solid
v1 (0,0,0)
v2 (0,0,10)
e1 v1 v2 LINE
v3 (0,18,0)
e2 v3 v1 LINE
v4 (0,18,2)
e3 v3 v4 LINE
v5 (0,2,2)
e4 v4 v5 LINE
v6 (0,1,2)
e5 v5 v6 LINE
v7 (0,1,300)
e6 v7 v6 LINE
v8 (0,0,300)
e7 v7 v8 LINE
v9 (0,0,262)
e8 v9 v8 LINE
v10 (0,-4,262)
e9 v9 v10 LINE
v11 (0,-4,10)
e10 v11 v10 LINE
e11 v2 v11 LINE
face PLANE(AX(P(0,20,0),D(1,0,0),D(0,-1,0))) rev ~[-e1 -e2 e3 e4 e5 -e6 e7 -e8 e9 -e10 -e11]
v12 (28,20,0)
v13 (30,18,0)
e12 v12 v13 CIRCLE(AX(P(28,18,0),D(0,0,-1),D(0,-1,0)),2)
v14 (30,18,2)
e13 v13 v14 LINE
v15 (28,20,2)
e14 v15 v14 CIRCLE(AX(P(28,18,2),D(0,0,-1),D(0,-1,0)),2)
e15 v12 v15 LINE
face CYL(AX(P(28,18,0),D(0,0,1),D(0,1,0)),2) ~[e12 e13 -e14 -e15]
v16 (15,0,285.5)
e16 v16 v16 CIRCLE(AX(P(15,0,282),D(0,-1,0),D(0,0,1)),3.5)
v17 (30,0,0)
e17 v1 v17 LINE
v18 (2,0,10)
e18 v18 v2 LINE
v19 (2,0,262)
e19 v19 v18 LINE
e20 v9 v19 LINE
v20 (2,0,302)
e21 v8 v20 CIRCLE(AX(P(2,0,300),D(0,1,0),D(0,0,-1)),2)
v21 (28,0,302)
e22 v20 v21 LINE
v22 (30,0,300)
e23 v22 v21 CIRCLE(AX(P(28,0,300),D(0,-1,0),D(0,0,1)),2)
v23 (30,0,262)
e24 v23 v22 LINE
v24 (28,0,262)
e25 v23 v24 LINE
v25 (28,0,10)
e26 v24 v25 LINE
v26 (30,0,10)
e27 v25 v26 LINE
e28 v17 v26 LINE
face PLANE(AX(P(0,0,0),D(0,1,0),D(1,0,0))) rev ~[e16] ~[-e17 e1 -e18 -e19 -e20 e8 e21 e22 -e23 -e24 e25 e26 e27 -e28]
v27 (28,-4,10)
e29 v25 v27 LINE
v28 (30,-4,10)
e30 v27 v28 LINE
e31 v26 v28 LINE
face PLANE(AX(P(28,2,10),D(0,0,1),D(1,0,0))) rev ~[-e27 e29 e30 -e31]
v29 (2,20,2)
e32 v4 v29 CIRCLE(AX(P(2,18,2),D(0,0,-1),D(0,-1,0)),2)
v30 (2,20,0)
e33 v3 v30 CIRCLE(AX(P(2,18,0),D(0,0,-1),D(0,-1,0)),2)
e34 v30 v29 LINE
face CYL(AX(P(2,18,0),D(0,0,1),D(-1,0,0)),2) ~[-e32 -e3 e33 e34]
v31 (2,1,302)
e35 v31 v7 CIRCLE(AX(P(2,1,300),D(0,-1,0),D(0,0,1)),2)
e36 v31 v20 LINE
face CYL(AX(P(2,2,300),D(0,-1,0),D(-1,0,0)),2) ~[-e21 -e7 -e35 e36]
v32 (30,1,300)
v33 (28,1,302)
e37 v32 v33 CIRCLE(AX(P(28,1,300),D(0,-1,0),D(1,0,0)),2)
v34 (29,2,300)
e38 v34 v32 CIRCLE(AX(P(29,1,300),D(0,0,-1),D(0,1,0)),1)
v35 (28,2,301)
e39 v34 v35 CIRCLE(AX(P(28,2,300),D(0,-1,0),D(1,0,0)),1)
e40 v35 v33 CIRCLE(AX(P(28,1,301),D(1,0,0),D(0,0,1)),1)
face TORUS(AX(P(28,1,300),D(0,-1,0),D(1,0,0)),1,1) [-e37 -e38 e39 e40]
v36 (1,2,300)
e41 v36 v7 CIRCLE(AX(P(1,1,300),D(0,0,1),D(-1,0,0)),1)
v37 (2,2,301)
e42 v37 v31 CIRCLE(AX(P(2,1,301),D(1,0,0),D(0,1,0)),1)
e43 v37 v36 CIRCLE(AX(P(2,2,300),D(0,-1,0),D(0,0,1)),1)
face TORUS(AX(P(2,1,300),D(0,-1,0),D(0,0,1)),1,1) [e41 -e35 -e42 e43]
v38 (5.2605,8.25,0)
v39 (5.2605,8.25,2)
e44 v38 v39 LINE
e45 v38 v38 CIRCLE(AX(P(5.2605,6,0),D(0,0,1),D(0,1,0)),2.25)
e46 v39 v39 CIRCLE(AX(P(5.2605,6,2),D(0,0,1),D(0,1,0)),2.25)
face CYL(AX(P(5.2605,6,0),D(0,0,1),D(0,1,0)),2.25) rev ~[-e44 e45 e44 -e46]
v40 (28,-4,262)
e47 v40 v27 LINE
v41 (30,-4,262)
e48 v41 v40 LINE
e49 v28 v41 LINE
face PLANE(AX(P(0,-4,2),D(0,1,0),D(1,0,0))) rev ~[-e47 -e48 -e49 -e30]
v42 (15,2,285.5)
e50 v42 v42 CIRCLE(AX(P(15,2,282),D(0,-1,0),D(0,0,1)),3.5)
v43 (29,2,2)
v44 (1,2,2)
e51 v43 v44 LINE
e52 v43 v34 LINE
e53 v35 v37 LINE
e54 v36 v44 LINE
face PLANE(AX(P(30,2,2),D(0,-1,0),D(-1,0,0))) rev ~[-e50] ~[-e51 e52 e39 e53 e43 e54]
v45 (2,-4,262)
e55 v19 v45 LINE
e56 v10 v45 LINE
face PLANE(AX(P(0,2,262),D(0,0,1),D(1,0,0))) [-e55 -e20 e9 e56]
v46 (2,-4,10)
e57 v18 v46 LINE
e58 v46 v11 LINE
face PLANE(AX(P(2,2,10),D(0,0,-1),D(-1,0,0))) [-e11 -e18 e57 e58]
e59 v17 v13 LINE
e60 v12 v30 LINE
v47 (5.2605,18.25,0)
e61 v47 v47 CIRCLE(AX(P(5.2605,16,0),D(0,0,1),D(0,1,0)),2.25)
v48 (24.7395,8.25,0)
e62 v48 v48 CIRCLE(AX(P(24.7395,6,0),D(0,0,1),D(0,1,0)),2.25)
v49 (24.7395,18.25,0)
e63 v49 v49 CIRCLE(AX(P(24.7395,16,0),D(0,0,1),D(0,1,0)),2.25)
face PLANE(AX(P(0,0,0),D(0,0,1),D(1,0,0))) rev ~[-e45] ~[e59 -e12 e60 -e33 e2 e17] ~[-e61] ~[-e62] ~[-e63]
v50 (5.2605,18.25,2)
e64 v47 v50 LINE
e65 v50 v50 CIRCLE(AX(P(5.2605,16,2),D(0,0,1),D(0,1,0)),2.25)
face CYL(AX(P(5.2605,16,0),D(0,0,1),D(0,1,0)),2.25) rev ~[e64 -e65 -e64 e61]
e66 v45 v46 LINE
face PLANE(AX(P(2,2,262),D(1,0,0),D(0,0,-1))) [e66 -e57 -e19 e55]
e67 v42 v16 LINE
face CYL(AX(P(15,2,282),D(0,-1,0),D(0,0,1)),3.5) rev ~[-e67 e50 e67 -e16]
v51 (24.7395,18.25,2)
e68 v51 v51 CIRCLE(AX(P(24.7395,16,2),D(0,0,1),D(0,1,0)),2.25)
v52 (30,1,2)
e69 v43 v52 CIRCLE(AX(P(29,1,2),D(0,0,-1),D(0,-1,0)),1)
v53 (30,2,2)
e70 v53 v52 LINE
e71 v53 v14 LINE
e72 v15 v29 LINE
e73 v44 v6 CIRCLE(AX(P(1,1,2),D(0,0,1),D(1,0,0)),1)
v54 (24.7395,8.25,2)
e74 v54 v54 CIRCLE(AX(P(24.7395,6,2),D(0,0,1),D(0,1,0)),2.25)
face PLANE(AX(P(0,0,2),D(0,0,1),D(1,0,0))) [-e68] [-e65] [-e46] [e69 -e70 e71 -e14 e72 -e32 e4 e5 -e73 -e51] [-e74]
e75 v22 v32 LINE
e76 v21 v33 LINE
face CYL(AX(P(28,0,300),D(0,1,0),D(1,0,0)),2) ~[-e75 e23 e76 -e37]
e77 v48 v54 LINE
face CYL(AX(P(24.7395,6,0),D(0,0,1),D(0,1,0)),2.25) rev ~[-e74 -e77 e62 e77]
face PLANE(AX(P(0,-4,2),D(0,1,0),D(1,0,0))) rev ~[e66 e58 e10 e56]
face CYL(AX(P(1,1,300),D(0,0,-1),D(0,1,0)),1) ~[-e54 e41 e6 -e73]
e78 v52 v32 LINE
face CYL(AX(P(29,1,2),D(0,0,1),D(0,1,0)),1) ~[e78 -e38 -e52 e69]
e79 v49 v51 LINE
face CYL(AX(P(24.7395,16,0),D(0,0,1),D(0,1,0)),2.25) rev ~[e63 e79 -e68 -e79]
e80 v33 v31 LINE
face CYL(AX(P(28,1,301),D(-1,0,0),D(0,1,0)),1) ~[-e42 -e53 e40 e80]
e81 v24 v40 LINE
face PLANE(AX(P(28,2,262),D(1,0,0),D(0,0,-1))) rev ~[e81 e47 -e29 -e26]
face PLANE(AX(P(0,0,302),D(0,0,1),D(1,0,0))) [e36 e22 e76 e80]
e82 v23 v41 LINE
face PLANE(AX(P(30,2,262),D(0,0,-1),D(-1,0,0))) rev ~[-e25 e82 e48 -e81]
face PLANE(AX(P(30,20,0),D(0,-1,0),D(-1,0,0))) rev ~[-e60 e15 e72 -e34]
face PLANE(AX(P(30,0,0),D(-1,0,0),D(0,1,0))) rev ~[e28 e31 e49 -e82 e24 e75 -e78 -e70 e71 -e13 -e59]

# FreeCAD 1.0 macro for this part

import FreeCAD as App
import Part
import Sketcher
Q = App.Units.Quantity


def edges_at(feature, points):
    """Names of the edges that pass closest to the given points."""
    edges = feature.Shape.Edges
    near = lambda p: min(range(len(edges)), key=lambda i: edges[i].distToShape(Part.Vertex(*p))[0])
    return sorted({f"Edge{near(p) + 1}" for p in points})

doc = App.newDocument("Part")
params = doc.addObject("Spreadsheet::Sheet", "Params")
for row, (alias, value) in enumerate([
    ("sketch1_width", "30 mm"),
    ("sketch1_height", "20 mm"),
    ("pad1_length", "2 mm"),
    ("sketch2_height", "2 mm"),
    ("sketch2_width", "30 mm"),
    ("pad2_length", "300 mm"),
    ("fillet_radius", "2 mm"),
    ("sketch3_diameter", "4.5 mm"),
    ("hole_diameter", "4.5 mm"),
    ("sketch4_diameter", "7 mm"),
    ("hole2_diameter", "7 mm"),
    ("sketch5_width", "2 mm"),
    ("sketch5_height", "252 mm"),
    ("pad3_length", "6 mm"),
    ("fillet2_radius", "1 mm"),
], start=1):
    params.set(f"A{row}", alias)
    params.set(f"B{row}", "=" + value)
    params.setAlias(f"B{row}", alias)

body = doc.addObject("PartDesign::Body", "Body")

sketch1 = body.newObject("Sketcher::SketchObject", "Sketch")
sketch1.AttachmentSupport = (doc.getObject("XY_Plane"), [""])
sketch1.MapMode = "FlatFace"
sketch1.addGeometry(Part.LineSegment(App.Vector(0, 20, 0), App.Vector(0, 0, 0)), False)
sketch1.addGeometry(Part.LineSegment(App.Vector(0, 0, 0), App.Vector(30, 0, 0)), False)
sketch1.addGeometry(Part.LineSegment(App.Vector(30, 0, 0), App.Vector(30, 20, 0)), False)
sketch1.addGeometry(Part.LineSegment(App.Vector(30, 20, 0), App.Vector(0, 20, 0)), False)
sketch1.addConstraint(Sketcher.Constraint("Coincident", 0, 2, 1, 1))
sketch1.addConstraint(Sketcher.Constraint("Coincident", 1, 2, 2, 1))
sketch1.addConstraint(Sketcher.Constraint("Coincident", 2, 2, 3, 1))
sketch1.addConstraint(Sketcher.Constraint("Coincident", 3, 2, 0, 1))
sketch1.addConstraint(Sketcher.Constraint("Vertical", 0))
sketch1.addConstraint(Sketcher.Constraint("Horizontal", 1))
sketch1.addConstraint(Sketcher.Constraint("Vertical", 2))
sketch1.addConstraint(Sketcher.Constraint("Horizontal", 3))
sketch1.addConstraint(Sketcher.Constraint("Coincident", 0, 2, -1, 1))
sketch1.addConstraint(Sketcher.Constraint("DistanceX", 1, 1, 1, 2, Q("30 mm")))
sketch1.addConstraint(Sketcher.Constraint("DistanceY", 0, 2, 0, 1, Q("20 mm")))
sketch1.setExpression("Constraints[9]", "Params.sketch1_width")
sketch1.setExpression("Constraints[10]", "Params.sketch1_height")
pad1 = body.newObject("PartDesign::Pad", "Pad")
pad1.Profile = sketch1
pad1.setExpression("Length", "Params.pad1_length")

sketch2 = body.newObject("Sketcher::SketchObject", "Sketch001")
sketch2.AttachmentSupport = (doc.getObject("XY_Plane"), [""])
sketch2.MapMode = "FlatFace"
sketch2.AttachmentOffset = App.Placement(App.Vector(0, 0, 2), App.Rotation())
sketch2.addGeometry(Part.LineSegment(App.Vector(30, 2, 0), App.Vector(0, 2, 0)), False)
sketch2.addGeometry(Part.LineSegment(App.Vector(0, 2, 0), App.Vector(0, 0, 0)), False)
sketch2.addGeometry(Part.LineSegment(App.Vector(0, 0, 0), App.Vector(30, 0, 0)), False)
sketch2.addGeometry(Part.LineSegment(App.Vector(30, 0, 0), App.Vector(30, 2, 0)), False)
sketch2.addConstraint(Sketcher.Constraint("Coincident", 0, 2, 1, 1))
sketch2.addConstraint(Sketcher.Constraint("Coincident", 1, 2, 2, 1))
sketch2.addConstraint(Sketcher.Constraint("Coincident", 2, 2, 3, 1))
sketch2.addConstraint(Sketcher.Constraint("Coincident", 3, 2, 0, 1))
sketch2.addConstraint(Sketcher.Constraint("Horizontal", 0))
sketch2.addConstraint(Sketcher.Constraint("Vertical", 1))
sketch2.addConstraint(Sketcher.Constraint("Horizontal", 2))
sketch2.addConstraint(Sketcher.Constraint("Vertical", 3))
sketch2.addConstraint(Sketcher.Constraint("Coincident", 1, 2, -1, 1))
sketch2.addConstraint(Sketcher.Constraint("DistanceY", 1, 2, 1, 1, Q("2 mm")))
sketch2.addConstraint(Sketcher.Constraint("DistanceX", 0, 2, 0, 1, Q("30 mm")))
sketch2.setExpression("Constraints[9]", "Params.sketch2_height")
sketch2.setExpression("Constraints[10]", "Params.sketch2_width")
pad2 = body.newObject("PartDesign::Pad", "Pad001")
pad2.Profile = sketch2
pad2.setExpression("Length", "Params.pad2_length")
doc.recompute()

fillet = body.newObject("PartDesign::Fillet", "Fillet")
fillet.Base = (pad2, edges_at(pad2, [
    (30, 20, 1),
    (0, 20, 1),
    (30, 1, 302),
    (0, 1, 302),
]))
fillet.setExpression("Radius", "Params.fillet_radius")

sketch3 = body.newObject("Sketcher::SketchObject", "Sketch002")
sketch3.AttachmentSupport = (doc.getObject("XY_Plane"), [""])
sketch3.MapMode = "FlatFace"
sketch3.addGeometry(Part.Circle(App.Vector(24.7, 16, 0), App.Vector(0, 0, 1), 2.2), False)
sketch3.addGeometry(Part.Circle(App.Vector(5.3, 16, 0), App.Vector(0, 0, 1), 2.2), False)
sketch3.addGeometry(Part.Circle(App.Vector(24.7, 6, 0), App.Vector(0, 0, 1), 2.2), False)
sketch3.addGeometry(Part.Circle(App.Vector(5.3, 6, 0), App.Vector(0, 0, 1), 2.2), False)
sketch3.addConstraint(Sketcher.Constraint("Equal", 0, 1))
sketch3.addConstraint(Sketcher.Constraint("Equal", 1, 2))
sketch3.addConstraint(Sketcher.Constraint("Equal", 2, 3))
sketch3.addConstraint(Sketcher.Constraint("Horizontal", 0, 3, 1, 3))
sketch3.addConstraint(Sketcher.Constraint("Horizontal", 2, 3, 3, 3))
sketch3.addConstraint(Sketcher.Constraint("Vertical", 0, 3, 2, 3))
sketch3.addConstraint(Sketcher.Constraint("Vertical", 1, 3, 3, 3))
sketch3.addConstraint(Sketcher.Constraint("Diameter", 0, Q("4.5 mm")))
sketch3.addConstraint(Sketcher.Constraint("DistanceY", -1, 1, 0, 3, Q("16 mm")))
sketch3.addConstraint(Sketcher.Constraint("DistanceY", -1, 1, 2, 3, Q("6 mm")))
sketch3.addConstraint(Sketcher.Constraint("DistanceX", 1, 3, 0, 3, Q("19.479 mm")))
sketch3.addConstraint(Sketcher.Constraint("DistanceX", -1, 1, 0, 3, Q("24.7395 mm")))
sketch3.setExpression("Constraints[7]", "Params.sketch3_diameter")
doc.recompute()
hole = body.newObject("PartDesign::Hole", "Hole")
hole.Profile = sketch3
hole.ThreadType = "None"
hole.setExpression("Diameter", "Params.hole_diameter")
hole.DepthType = "ThroughAll"
hole.Reversed = True

sketch4 = body.newObject("Sketcher::SketchObject", "Sketch003")
sketch4.AttachmentSupport = (doc.getObject("XZ_Plane"), [""])
sketch4.MapMode = "FlatFace"
sketch4.AttachmentOffset = App.Placement(App.Vector(0, 0, -2), App.Rotation())
sketch4.addGeometry(Part.Circle(App.Vector(15, 282, 0), App.Vector(0, 0, 1), 3.5), False)
sketch4.addConstraint(Sketcher.Constraint("Diameter", 0, Q("7 mm")))
sketch4.addConstraint(Sketcher.Constraint("DistanceX", -1, 1, 0, 3, Q("15 mm")))
sketch4.addConstraint(Sketcher.Constraint("DistanceY", -1, 1, 0, 3, Q("282 mm")))
sketch4.setExpression("Constraints[0]", "Params.sketch4_diameter")
doc.recompute()
hole2 = body.newObject("PartDesign::Hole", "Hole001")
hole2.Profile = sketch4
hole2.ThreadType = "None"
hole2.setExpression("Diameter", "Params.hole2_diameter")
hole2.DepthType = "ThroughAll"
hole2.Reversed = True

sketch5 = body.newObject("Sketcher::SketchObject", "Sketch004")
sketch5.AttachmentSupport = (doc.getObject("XZ_Plane"), [""])
sketch5.MapMode = "FlatFace"
sketch5.AttachmentOffset = App.Placement(App.Vector(0, 0, -2), App.Rotation())
sketch5.addGeometry(Part.LineSegment(App.Vector(30, 262, 0), App.Vector(30, 10, 0)), False)
sketch5.addGeometry(Part.LineSegment(App.Vector(30, 10, 0), App.Vector(28, 10, 0)), False)
sketch5.addGeometry(Part.LineSegment(App.Vector(28, 10, 0), App.Vector(28, 262, 0)), False)
sketch5.addGeometry(Part.LineSegment(App.Vector(28, 262, 0), App.Vector(30, 262, 0)), False)
sketch5.addGeometry(Part.LineSegment(App.Vector(2, 10, 0), App.Vector(0, 10, 0)), False)
sketch5.addGeometry(Part.LineSegment(App.Vector(0, 10, 0), App.Vector(0, 262, 0)), False)
sketch5.addGeometry(Part.LineSegment(App.Vector(0, 262, 0), App.Vector(2, 262, 0)), False)
sketch5.addGeometry(Part.LineSegment(App.Vector(2, 262, 0), App.Vector(2, 10, 0)), False)
sketch5.addConstraint(Sketcher.Constraint("Coincident", 0, 2, 1, 1))
sketch5.addConstraint(Sketcher.Constraint("Coincident", 1, 2, 2, 1))
sketch5.addConstraint(Sketcher.Constraint("Coincident", 2, 2, 3, 1))
sketch5.addConstraint(Sketcher.Constraint("Coincident", 3, 2, 0, 1))
sketch5.addConstraint(Sketcher.Constraint("Coincident", 4, 2, 5, 1))
sketch5.addConstraint(Sketcher.Constraint("Coincident", 5, 2, 6, 1))
sketch5.addConstraint(Sketcher.Constraint("Coincident", 6, 2, 7, 1))
sketch5.addConstraint(Sketcher.Constraint("Coincident", 7, 2, 4, 1))
sketch5.addConstraint(Sketcher.Constraint("Vertical", 0))
sketch5.addConstraint(Sketcher.Constraint("Horizontal", 1))
sketch5.addConstraint(Sketcher.Constraint("Vertical", 2))
sketch5.addConstraint(Sketcher.Constraint("Horizontal", 3))
sketch5.addConstraint(Sketcher.Constraint("Horizontal", 4))
sketch5.addConstraint(Sketcher.Constraint("Vertical", 5))
sketch5.addConstraint(Sketcher.Constraint("Horizontal", 6))
sketch5.addConstraint(Sketcher.Constraint("Vertical", 7))
sketch5.addConstraint(Sketcher.Constraint("PointOnObject", 4, 2, -2))
sketch5.addConstraint(Sketcher.Constraint("Horizontal", 1, 2, 4, 2))
sketch5.addConstraint(Sketcher.Constraint("Horizontal", 3, 2, 5, 2))
sketch5.addConstraint(Sketcher.Constraint("Equal", 3, 4))
sketch5.addConstraint(Sketcher.Constraint("DistanceX", 1, 2, 1, 1, Q("2 mm")))
sketch5.addConstraint(Sketcher.Constraint("DistanceY", -1, 1, 0, 2, Q("10 mm")))
sketch5.addConstraint(Sketcher.Constraint("DistanceY", 0, 2, 0, 1, Q("252 mm")))
sketch5.addConstraint(Sketcher.Constraint("DistanceX", -1, 1, 0, 2, Q("30 mm")))
sketch5.setExpression("Constraints[20]", "Params.sketch5_width")
sketch5.setExpression("Constraints[22]", "Params.sketch5_height")
pad3 = body.newObject("PartDesign::Pad", "Pad002")
pad3.Profile = sketch5
pad3.setExpression("Length", "Params.pad3_length")
doc.recompute()

fillet2 = body.newObject("PartDesign::Fillet", "Fillet001")
fillet2.Base = (pad3, edges_at(pad3, [
    (29.414, 2, 301.414),
    (15, 2, 302),
    (0.586, 2, 301.414),
    (0, 2, 151),
]))
fillet2.setExpression("Radius", "Params.fillet2_radius")

doc.recompute()
